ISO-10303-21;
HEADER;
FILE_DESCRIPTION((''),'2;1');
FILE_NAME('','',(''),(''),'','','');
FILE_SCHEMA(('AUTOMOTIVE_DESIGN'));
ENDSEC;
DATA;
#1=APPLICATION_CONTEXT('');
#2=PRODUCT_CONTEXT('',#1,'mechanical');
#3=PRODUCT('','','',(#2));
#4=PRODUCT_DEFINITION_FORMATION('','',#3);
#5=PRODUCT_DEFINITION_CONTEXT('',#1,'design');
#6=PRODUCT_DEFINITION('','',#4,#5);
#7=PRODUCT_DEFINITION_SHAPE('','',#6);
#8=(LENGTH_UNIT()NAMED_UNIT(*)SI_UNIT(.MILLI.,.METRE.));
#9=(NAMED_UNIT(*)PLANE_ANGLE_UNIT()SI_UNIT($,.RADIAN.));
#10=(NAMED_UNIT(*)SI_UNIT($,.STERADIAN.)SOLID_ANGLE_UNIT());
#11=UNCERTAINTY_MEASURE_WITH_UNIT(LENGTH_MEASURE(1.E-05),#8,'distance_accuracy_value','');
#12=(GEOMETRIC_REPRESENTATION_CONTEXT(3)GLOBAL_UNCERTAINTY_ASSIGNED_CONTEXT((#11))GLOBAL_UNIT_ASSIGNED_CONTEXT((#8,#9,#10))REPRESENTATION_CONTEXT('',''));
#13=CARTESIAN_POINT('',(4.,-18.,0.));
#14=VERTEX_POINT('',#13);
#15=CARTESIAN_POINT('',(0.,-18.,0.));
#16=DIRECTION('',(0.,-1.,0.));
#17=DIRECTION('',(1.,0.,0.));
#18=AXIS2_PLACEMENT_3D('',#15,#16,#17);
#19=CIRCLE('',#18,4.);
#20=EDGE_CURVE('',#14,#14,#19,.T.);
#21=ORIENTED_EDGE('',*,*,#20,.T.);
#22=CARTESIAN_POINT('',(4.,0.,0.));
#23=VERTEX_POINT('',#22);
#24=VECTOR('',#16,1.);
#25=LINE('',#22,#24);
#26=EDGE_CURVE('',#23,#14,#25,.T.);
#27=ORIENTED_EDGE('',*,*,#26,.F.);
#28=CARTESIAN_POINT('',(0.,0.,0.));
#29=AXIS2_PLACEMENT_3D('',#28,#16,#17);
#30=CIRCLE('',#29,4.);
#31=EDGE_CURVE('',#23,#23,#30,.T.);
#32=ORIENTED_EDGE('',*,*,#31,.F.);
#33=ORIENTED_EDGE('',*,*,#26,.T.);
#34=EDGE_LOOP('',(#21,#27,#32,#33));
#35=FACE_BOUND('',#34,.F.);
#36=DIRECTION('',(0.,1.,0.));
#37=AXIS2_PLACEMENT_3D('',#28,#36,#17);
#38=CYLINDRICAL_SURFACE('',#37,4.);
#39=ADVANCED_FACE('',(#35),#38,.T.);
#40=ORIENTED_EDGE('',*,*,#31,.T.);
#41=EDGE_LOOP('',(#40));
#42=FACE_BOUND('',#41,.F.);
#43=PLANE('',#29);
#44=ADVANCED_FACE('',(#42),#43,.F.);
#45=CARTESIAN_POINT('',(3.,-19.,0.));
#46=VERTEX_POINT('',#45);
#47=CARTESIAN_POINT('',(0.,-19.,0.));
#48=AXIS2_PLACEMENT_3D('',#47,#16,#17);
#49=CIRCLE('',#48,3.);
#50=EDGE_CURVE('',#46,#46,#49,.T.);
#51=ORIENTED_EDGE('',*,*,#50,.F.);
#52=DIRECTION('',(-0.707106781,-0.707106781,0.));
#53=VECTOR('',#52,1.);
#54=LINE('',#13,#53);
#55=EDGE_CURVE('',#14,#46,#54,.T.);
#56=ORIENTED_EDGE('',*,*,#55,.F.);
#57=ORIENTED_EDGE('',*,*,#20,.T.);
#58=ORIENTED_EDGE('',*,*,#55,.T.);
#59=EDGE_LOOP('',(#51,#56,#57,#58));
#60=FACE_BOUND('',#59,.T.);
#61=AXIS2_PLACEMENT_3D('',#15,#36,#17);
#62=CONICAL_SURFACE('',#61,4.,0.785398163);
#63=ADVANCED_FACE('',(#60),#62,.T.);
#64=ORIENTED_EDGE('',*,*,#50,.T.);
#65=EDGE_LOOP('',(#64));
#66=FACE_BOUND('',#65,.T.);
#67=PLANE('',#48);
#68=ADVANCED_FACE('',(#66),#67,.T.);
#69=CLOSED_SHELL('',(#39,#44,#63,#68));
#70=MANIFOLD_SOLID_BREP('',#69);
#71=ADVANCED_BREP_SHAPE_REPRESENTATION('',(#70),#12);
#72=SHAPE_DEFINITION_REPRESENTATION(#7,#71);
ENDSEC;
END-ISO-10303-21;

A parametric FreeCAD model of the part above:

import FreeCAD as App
import Part
import Sketcher
from FreeCAD import Vector


def edges_at(feature, points):
    """Names of the edges that pass closest to the given points."""
    edges = feature.Shape.Edges
    near = lambda p: min(range(len(edges)), key=lambda i: edges[i].distToShape(Part.Vertex(*p))[0])
    return sorted({f"Edge{near(p) + 1}" for p in points})

doc = App.newDocument("Part")
body = doc.addObject("PartDesign::Body", "Body")

# Sketch on XZ plane
sketch1 = body.newObject("Sketcher::SketchObject", "Sketch")
sketch1.AttachmentSupport = (doc.getObject("XZ_Plane"), [""])
sketch1.MapMode = "FlatFace"
sketch1.addGeometry(Part.Circle(Vector(0, 0, 0), Vector(0, 0, 1), 4), False)
sketch1.addConstraint(Sketcher.Constraint("Coincident", 0, 3, -1, 1))
sketch1.addConstraint(Sketcher.Constraint("Diameter", 0, 8.0))
pad1 = body.newObject("PartDesign::Pad", "Pad")
pad1.Profile = sketch1
pad1.Length = 19
doc.recompute()

chamfer = body.newObject("PartDesign::Chamfer", "Chamfer")
chamfer.Base = (pad1, edges_at(pad1, [(-4, -19, 0)]))
chamfer.Size = 1

doc.recompute()
